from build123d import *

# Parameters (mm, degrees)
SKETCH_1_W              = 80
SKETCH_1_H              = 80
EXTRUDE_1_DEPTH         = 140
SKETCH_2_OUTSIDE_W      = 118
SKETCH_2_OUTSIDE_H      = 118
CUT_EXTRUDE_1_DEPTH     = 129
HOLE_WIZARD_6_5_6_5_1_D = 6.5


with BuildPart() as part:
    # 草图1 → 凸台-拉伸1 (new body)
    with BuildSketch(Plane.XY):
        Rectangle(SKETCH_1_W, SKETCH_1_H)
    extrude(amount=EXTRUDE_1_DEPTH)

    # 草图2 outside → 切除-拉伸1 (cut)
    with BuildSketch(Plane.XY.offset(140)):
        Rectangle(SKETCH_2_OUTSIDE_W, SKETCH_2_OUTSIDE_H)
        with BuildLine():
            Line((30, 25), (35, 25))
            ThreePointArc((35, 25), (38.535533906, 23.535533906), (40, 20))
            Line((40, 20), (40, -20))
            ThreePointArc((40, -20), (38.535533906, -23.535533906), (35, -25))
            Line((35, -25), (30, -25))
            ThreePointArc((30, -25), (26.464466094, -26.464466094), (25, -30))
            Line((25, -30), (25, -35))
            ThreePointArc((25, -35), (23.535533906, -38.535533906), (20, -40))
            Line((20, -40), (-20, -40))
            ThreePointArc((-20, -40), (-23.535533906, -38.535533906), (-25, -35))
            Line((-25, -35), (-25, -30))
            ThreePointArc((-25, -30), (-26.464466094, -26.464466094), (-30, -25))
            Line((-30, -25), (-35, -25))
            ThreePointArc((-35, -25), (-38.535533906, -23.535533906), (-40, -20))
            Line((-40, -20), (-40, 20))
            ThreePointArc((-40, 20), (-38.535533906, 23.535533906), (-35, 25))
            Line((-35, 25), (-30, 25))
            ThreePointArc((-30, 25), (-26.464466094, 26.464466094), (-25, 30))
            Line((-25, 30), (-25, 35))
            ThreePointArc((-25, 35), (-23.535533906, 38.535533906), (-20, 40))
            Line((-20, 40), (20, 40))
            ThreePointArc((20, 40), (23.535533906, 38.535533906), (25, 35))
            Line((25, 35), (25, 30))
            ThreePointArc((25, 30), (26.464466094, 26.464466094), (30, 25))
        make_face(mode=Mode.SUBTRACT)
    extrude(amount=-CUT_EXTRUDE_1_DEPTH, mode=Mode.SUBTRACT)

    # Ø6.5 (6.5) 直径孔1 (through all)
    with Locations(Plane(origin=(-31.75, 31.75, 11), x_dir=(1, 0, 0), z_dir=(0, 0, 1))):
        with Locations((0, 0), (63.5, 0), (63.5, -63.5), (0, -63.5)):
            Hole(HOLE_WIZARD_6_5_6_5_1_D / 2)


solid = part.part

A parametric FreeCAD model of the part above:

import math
import FreeCAD as App
import Part
import Sketcher
from FreeCAD import Vector

doc = App.newDocument("Part")
params = doc.addObject("Spreadsheet::Sheet", "Params")
for row, (alias, value) in enumerate([
    ("sketch1_width", "80 mm"),
    ("pad1_length", "140 mm"),
    ("sketch2_radius", "5 mm"),
    ("sketch2_width", "118 mm"),
    ("sketch2_width2", "5 mm"),
    ("sketch2_width3", "40 mm"),
    ("pocket1_length", "129 mm"),
    ("sketch3_diameter", "6.5 mm"),
    ("hole_diameter", "6.5 mm"),
], start=1):
    params.set(f"A{row}", alias)
    params.set(f"B{row}", "=" + value)
    params.setAlias(f"B{row}", alias)

body = doc.addObject("PartDesign::Body", "Body")

# Sketch on XY plane
sketch1 = body.newObject("Sketcher::SketchObject", "Sketch")
sketch1.AttachmentSupport = (doc.getObject("XY_Plane"), [""])
sketch1.MapMode = "FlatFace"
sketch1.addGeometry([
    Part.LineSegment(Vector(-40, 40, 0), Vector(-40, -40, 0)),
    Part.LineSegment(Vector(-40, -40, 0), Vector(40, -40, 0)),
    Part.LineSegment(Vector(40, -40, 0), Vector(40, 40, 0)),
    Part.LineSegment(Vector(40, 40, 0), Vector(-40, 40, 0)),
], False)
sketch1.addConstraint([
    Sketcher.Constraint("Coincident", 0, 2, 1, 1),
    Sketcher.Constraint("Coincident", 1, 2, 2, 1),
    Sketcher.Constraint("Coincident", 2, 2, 3, 1),
    Sketcher.Constraint("Coincident", 3, 2, 0, 1),
    Sketcher.Constraint("Vertical", 0),
    Sketcher.Constraint("Horizontal", 1),
    Sketcher.Constraint("Vertical", 2),
    Sketcher.Constraint("Horizontal", 3),
    Sketcher.Constraint("Symmetric", 0, 2, 2, 2, -1, 1),
    Sketcher.Constraint("Equal", 3, 0),
    Sketcher.Constraint("DistanceX", 1, 1, 1, 2, 80.0),
])
sketch1.setExpression("Constraints[10]", "Params.sketch1_width")
pad1 = body.newObject("PartDesign::Pad", "Pad")
pad1.Profile = sketch1
pad1.setExpression("Length", "Params.pad1_length")

# Sketch on XY plane
sketch2 = body.newObject("Sketcher::SketchObject", "Sketch001")
sketch2.AttachmentSupport = (doc.getObject("XY_Plane"), [""])
sketch2.MapMode = "FlatFace"
sketch2.AttachmentOffset = App.Placement(Vector(0, 0, 140), App.Rotation())
sketch2.addGeometry([
    Part.LineSegment(Vector(-59, 59, 0), Vector(-59, -59, 0)),  # 0
    Part.LineSegment(Vector(-59, -59, 0), Vector(59, -59, 0)),  # 1
    Part.LineSegment(Vector(59, -59, 0), Vector(59, 59, 0)),  # 2
    Part.LineSegment(Vector(59, 59, 0), Vector(-59, 59, 0)),  # 3
    Part.ArcOfCircle(Part.Circle(Vector(30, 30, 0), Vector(0, 0, 1), 5), math.radians(180), math.radians(270)),  # 4
    Part.LineSegment(Vector(30, 25, 0), Vector(35, 25, 0)),  # 5
    Part.ArcOfCircle(Part.Circle(Vector(35, 20, 0), Vector(0, 0, 1), 5), math.radians(0), math.radians(90)),  # 6
    Part.LineSegment(Vector(40, 20, 0), Vector(40, -20, 0)),  # 7
    Part.ArcOfCircle(Part.Circle(Vector(35, -20, 0), Vector(0, 0, 1), 5), math.radians(-90), math.radians(0)),  # 8
    Part.LineSegment(Vector(35, -25, 0), Vector(30, -25, 0)),  # 9
    Part.ArcOfCircle(Part.Circle(Vector(30, -30, 0), Vector(0, 0, 1), 5), math.radians(90), math.radians(180)),  # 10
    Part.LineSegment(Vector(25, -30, 0), Vector(25, -35, 0)),  # 11
    Part.ArcOfCircle(Part.Circle(Vector(20, -35, 0), Vector(0, 0, 1), 5), math.radians(-90), math.radians(0)),  # 12
    Part.LineSegment(Vector(20, -40, 0), Vector(-20, -40, 0)),  # 13
    Part.ArcOfCircle(Part.Circle(Vector(-20, -35, 0), Vector(0, 0, 1), 5), math.radians(180), math.radians(270)),  # 14
    Part.LineSegment(Vector(-25, -35, 0), Vector(-25, -30, 0)),  # 15
    Part.ArcOfCircle(Part.Circle(Vector(-30, -30, 0), Vector(0, 0, 1), 5), math.radians(0), math.radians(90)),  # 16
    Part.LineSegment(Vector(-30, -25, 0), Vector(-35, -25, 0)),  # 17
    Part.ArcOfCircle(Part.Circle(Vector(-35, -20, 0), Vector(0, 0, 1), 5), math.radians(180), math.radians(270)),  # 18
    Part.LineSegment(Vector(-40, -20, 0), Vector(-40, 20, 0)),  # 19
    Part.ArcOfCircle(Part.Circle(Vector(-35, 20, 0), Vector(0, 0, 1), 5), math.radians(90), math.radians(180)),  # 20
    Part.LineSegment(Vector(-35, 25, 0), Vector(-30, 25, 0)),  # 21
    Part.ArcOfCircle(Part.Circle(Vector(-30, 30, 0), Vector(0, 0, 1), 5), math.radians(-90), math.radians(0)),  # 22
    Part.LineSegment(Vector(-25, 30, 0), Vector(-25, 35, 0)),  # 23
    Part.ArcOfCircle(Part.Circle(Vector(-20, 35, 0), Vector(0, 0, 1), 5), math.radians(90), math.radians(180)),  # 24
    Part.LineSegment(Vector(-20, 40, 0), Vector(20, 40, 0)),  # 25
    Part.ArcOfCircle(Part.Circle(Vector(20, 35, 0), Vector(0, 0, 1), 5), math.radians(0), math.radians(90)),  # 26
    Part.LineSegment(Vector(25, 35, 0), Vector(25, 30, 0)),  # 27
], False)
sketch2.addConstraint([
    Sketcher.Constraint("Coincident", 0, 2, 1, 1),
    Sketcher.Constraint("Coincident", 1, 2, 2, 1),
    Sketcher.Constraint("Coincident", 2, 2, 3, 1),
    Sketcher.Constraint("Coincident", 3, 2, 0, 1),
    Sketcher.Constraint("Tangent", 4, 2, 5, 1),
    Sketcher.Constraint("Tangent", 5, 2, 6, 2),
    Sketcher.Constraint("Tangent", 6, 1, 7, 1),
    Sketcher.Constraint("Tangent", 7, 2, 8, 2),
    Sketcher.Constraint("Tangent", 8, 1, 9, 1),
    Sketcher.Constraint("Tangent", 9, 2, 10, 1),
    Sketcher.Constraint("Tangent", 10, 2, 11, 1),
    Sketcher.Constraint("Tangent", 11, 2, 12, 2),
    Sketcher.Constraint("Tangent", 12, 1, 13, 1),
    Sketcher.Constraint("Tangent", 13, 2, 14, 2),
    Sketcher.Constraint("Tangent", 14, 1, 15, 1),
    Sketcher.Constraint("Tangent", 15, 2, 16, 1),
    Sketcher.Constraint("Tangent", 16, 2, 17, 1),
    Sketcher.Constraint("Tangent", 17, 2, 18, 2),
    Sketcher.Constraint("Tangent", 18, 1, 19, 1),
    Sketcher.Constraint("Tangent", 19, 2, 20, 2),
    Sketcher.Constraint("Tangent", 20, 1, 21, 1),
    Sketcher.Constraint("Tangent", 21, 2, 22, 1),
    Sketcher.Constraint("Tangent", 22, 2, 23, 1),
    Sketcher.Constraint("Tangent", 23, 2, 24, 2),
    Sketcher.Constraint("Tangent", 24, 1, 25, 1),
    Sketcher.Constraint("Tangent", 25, 2, 26, 2),
    Sketcher.Constraint("Tangent", 26, 1, 27, 1),
    Sketcher.Constraint("Tangent", 27, 2, 4, 1),
    Sketcher.Constraint("Vertical", 0),
    Sketcher.Constraint("Horizontal", 1),
    Sketcher.Constraint("Vertical", 2),
    Sketcher.Constraint("Horizontal", 3),
    Sketcher.Constraint("Horizontal", 5),
    Sketcher.Constraint("Vertical", 7),
    Sketcher.Constraint("Horizontal", 9),
    Sketcher.Constraint("Vertical", 11),
    Sketcher.Constraint("Horizontal", 13),
    Sketcher.Constraint("Vertical", 15),
    Sketcher.Constraint("Horizontal", 17),
    Sketcher.Constraint("Vertical", 19),
    Sketcher.Constraint("Horizontal", 21),
    Sketcher.Constraint("Vertical", 23),
    Sketcher.Constraint("Horizontal", 25),
    Sketcher.Constraint("Vertical", 27),
    Sketcher.Constraint("Equal", 4, 6),
    Sketcher.Constraint("Equal", 6, 8),
    Sketcher.Constraint("Equal", 8, 10),
    Sketcher.Constraint("Equal", 10, 12),
    Sketcher.Constraint("Equal", 12, 14),
    Sketcher.Constraint("Equal", 14, 16),
    Sketcher.Constraint("Equal", 16, 18),
    Sketcher.Constraint("Equal", 18, 20),
    Sketcher.Constraint("Equal", 20, 22),
    Sketcher.Constraint("Equal", 22, 24),
    Sketcher.Constraint("Equal", 24, 26),
    Sketcher.Constraint("Symmetric", 4, 3, 16, 3, -1, 1),
    Sketcher.Constraint("Symmetric", 8, 3, 20, 3, -1, 1),
    Sketcher.Constraint("Symmetric", 12, 3, 24, 3, -1, 1),
    Sketcher.Constraint("Symmetric", 0, 2, 2, 2, -1, 1),
    Sketcher.Constraint("Symmetric", 10, 3, 16, 3, -2),
    Sketcher.Constraint("Equal", 3, 0),
    Sketcher.Constraint("Equal", 25, 7),
    Sketcher.Constraint("Equal", 21, 11),
    Sketcher.Constraint("Radius", 4, 5.0),
    Sketcher.Constraint("DistanceX", 1, 1, 1, 2, 118.0),
    Sketcher.Constraint("DistanceX", 5, 1, 5, 2, 5.0),
    Sketcher.Constraint("DistanceX", 13, 2, 13, 1, 40.0),
])
sketch2.setExpression("Constraints[63]", "Params.sketch2_radius")
sketch2.setExpression("Constraints[64]", "Params.sketch2_width")
sketch2.setExpression("Constraints[65]", "Params.sketch2_width2")
sketch2.setExpression("Constraints[66]", "Params.sketch2_width3")
pocket1 = body.newObject("PartDesign::Pocket", "Pocket")
pocket1.Profile = sketch2
pocket1.setExpression("Length", "Params.pocket1_length")

# Sketch on XY plane
sketch3 = body.newObject("Sketcher::SketchObject", "Sketch002")
sketch3.AttachmentSupport = (doc.getObject("XY_Plane"), [""])
sketch3.MapMode = "FlatFace"
sketch3.AttachmentOffset = App.Placement(Vector(0, 0, 11), App.Rotation())
sketch3.addGeometry([
    Part.Circle(Vector(-31.75, 31.75, 0), Vector(0, 0, 1), 3.25),
    Part.Circle(Vector(31.75, 31.75, 0), Vector(0, 0, 1), 3.25),
    Part.Circle(Vector(31.75, -31.75, 0), Vector(0, 0, 1), 3.25),
    Part.Circle(Vector(-31.75, -31.75, 0), Vector(0, 0, 1), 3.25),
], False)
sketch3.addConstraint([
    Sketcher.Constraint("Equal", 0, 1),
    Sketcher.Constraint("Equal", 1, 2),
    Sketcher.Constraint("Equal", 2, 3),
    Sketcher.Constraint("Symmetric", 0, 3, 2, 3, -1, 1),
    Sketcher.Constraint("Symmetric", 1, 3, 3, 3, -1, 1),
    Sketcher.Constraint("Symmetric", 0, 3, 1, 3, -2),
    Sketcher.Constraint("Diameter", 0, 6.5),
    Sketcher.Constraint("DistanceX", 0, 3, 1, 3, 63.5),
    Sketcher.Constraint("DistanceY", 2, 3, 1, 3, 63.5),
])
sketch3.setExpression("Constraints[6]", "Params.sketch3_diameter")
doc.recompute()
hole = body.newObject("PartDesign::Hole", "Hole")
hole.Profile = sketch3
hole.ThreadType = "None"
hole.setExpression("Diameter", "Params.hole_diameter")
hole.DepthType = "ThroughAll"

doc.recompute()
